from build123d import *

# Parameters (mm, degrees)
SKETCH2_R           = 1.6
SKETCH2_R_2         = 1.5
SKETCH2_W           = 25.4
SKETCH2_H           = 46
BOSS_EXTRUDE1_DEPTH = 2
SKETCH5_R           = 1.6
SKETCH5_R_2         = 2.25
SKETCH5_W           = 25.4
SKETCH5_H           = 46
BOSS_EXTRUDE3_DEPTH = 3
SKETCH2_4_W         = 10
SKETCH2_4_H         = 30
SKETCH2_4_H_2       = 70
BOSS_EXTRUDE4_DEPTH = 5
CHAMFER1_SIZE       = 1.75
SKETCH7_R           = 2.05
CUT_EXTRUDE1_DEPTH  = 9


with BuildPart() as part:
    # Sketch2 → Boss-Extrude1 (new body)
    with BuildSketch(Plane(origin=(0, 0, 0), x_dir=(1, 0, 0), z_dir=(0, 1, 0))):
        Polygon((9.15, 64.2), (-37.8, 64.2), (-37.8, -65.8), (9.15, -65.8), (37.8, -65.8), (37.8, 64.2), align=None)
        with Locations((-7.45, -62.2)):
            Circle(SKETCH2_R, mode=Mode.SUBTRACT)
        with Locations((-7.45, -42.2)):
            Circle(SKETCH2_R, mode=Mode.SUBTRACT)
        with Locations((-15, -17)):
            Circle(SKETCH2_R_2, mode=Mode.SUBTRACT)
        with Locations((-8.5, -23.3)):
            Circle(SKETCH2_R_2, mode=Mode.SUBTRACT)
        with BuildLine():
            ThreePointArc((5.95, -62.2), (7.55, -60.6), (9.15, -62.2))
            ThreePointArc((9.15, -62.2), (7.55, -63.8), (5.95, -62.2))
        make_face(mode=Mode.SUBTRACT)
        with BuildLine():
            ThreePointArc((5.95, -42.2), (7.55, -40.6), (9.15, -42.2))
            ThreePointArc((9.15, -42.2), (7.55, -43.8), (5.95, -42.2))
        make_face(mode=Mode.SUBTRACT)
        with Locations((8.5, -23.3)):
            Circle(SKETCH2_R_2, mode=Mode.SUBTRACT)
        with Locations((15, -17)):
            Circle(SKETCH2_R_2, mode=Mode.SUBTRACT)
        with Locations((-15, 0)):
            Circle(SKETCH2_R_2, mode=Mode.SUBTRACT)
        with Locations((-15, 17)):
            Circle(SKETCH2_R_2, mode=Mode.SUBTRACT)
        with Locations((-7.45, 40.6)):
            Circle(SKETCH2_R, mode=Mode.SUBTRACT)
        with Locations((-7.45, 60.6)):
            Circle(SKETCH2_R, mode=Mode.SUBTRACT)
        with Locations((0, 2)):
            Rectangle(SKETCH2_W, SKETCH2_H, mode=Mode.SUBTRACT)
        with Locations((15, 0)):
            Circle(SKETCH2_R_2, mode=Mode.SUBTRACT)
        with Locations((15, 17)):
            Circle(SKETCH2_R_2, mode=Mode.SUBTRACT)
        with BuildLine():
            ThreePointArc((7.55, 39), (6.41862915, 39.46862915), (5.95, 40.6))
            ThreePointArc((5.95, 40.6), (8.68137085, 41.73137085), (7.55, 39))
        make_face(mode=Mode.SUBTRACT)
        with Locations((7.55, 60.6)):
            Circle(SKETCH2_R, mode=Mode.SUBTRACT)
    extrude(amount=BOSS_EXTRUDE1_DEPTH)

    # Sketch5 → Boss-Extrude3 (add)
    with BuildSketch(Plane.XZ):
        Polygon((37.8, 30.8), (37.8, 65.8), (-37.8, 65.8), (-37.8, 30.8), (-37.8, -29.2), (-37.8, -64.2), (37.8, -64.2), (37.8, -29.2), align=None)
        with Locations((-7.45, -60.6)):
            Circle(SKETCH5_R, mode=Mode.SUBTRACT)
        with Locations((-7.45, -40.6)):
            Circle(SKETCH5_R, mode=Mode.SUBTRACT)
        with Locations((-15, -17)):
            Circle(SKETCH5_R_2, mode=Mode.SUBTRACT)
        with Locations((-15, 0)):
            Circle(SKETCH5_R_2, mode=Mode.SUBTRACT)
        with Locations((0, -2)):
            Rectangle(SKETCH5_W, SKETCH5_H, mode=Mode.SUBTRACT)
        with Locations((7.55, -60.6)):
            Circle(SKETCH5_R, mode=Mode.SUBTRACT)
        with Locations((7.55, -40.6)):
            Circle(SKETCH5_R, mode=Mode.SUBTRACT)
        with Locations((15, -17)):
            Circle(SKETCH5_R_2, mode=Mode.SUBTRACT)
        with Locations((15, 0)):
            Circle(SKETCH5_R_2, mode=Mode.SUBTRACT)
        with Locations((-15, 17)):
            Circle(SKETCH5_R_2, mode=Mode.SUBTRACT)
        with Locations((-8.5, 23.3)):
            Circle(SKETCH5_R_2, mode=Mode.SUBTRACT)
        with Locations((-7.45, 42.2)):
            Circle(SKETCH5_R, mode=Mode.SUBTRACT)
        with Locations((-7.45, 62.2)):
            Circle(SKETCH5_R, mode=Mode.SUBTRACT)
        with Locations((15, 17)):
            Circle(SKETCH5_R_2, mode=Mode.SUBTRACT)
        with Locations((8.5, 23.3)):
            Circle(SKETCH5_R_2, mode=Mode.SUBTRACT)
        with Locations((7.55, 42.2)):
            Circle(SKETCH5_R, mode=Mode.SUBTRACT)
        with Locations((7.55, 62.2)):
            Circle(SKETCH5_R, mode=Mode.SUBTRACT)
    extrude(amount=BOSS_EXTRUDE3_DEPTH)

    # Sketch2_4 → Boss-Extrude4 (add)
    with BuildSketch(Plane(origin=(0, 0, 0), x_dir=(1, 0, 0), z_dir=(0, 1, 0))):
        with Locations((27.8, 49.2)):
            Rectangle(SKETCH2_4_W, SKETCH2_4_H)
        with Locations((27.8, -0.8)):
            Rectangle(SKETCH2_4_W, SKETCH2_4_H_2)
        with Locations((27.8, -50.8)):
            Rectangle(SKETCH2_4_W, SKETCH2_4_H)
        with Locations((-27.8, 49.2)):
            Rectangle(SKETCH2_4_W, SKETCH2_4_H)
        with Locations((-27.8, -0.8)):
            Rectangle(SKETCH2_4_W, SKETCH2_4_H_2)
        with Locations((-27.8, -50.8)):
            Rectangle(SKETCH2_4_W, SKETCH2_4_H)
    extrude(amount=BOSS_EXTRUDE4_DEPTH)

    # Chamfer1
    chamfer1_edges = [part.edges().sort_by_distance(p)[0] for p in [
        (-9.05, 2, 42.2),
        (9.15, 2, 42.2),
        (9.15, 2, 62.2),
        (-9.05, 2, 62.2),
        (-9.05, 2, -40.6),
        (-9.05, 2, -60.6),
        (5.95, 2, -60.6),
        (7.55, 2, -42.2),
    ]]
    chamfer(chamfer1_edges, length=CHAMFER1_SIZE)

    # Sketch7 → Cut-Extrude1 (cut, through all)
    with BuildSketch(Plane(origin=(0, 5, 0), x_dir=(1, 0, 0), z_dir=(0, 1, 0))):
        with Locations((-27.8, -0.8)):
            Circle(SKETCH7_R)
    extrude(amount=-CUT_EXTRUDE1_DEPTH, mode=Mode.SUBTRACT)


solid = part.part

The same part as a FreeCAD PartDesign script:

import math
import FreeCAD as App
import Part
import Sketcher
Q = App.Units.Quantity


def edges_at(feature, points):
    """Names of the edges that pass closest to the given points."""
    edges = feature.Shape.Edges
    near = lambda p: min(range(len(edges)), key=lambda i: edges[i].distToShape(Part.Vertex(*p))[0])
    return sorted({f"Edge{near(p) + 1}" for p in points})


def add_polygon(sketch, points):
    """Adds a closed chain of lines whose ends are joined by coincident constraints."""
    first, n = sketch.GeometryCount, len(points)
    for a, b in zip(points, points[1:] + points[:1]):
        sketch.addGeometry(Part.LineSegment(App.Vector(*a, 0), App.Vector(*b, 0)), False)
    for i in range(n):
        sketch.addConstraint(Sketcher.Constraint("Coincident", first + i, 2, first + (i + 1) % n, 1))

doc = App.newDocument("Part")
body = doc.addObject("PartDesign::Body", "Body")

# Sketch on XZ plane
sketch1 = body.newObject("Sketcher::SketchObject", "Sketch")
sketch1.AttachmentSupport = (doc.getObject("XZ_Plane"), [""])
sketch1.MapMode = "FlatFace"
add_polygon(sketch1, [(-37.8, -64.2), (-37.8, 65.8), (37.8, 65.8), (37.8, -64.2)])  # lines 0-3
sketch1.addGeometry(Part.Circle(App.Vector(-7.5, 62.2, 0), App.Vector(0, 0, 1), 1.6), False)  # 4
sketch1.addGeometry(Part.Circle(App.Vector(-7.5, 42.2, 0), App.Vector(0, 0, 1), 1.6), False)  # 5
sketch1.addGeometry(Part.Circle(App.Vector(-15, 17, 0), App.Vector(0, 0, 1), 1.5), False)  # 6
sketch1.addGeometry(Part.Circle(App.Vector(-8.5, 23.3, 0), App.Vector(0, 0, 1), 1.5), False)  # 7
sketch1.addGeometry(Part.Circle(App.Vector(7.5, 62.2, 0), App.Vector(0, 0, 1), 1.6), False)  # 8
sketch1.addGeometry(Part.Circle(App.Vector(7.5, 42.2, 0), App.Vector(0, 0, 1), 1.6), False)  # 9
sketch1.addGeometry(Part.Circle(App.Vector(8.5, 23.3, 0), App.Vector(0, 0, 1), 1.5), False)  # 10
sketch1.addGeometry(Part.Circle(App.Vector(15, 17, 0), App.Vector(0, 0, 1), 1.5), False)  # 11
sketch1.addGeometry(Part.Circle(App.Vector(-15, 0, 0), App.Vector(0, 0, 1), 1.5), False)  # 12
sketch1.addGeometry(Part.Circle(App.Vector(-15, -17, 0), App.Vector(0, 0, 1), 1.5), False)  # 13
sketch1.addGeometry(Part.Circle(App.Vector(-7.5, -40.6, 0), App.Vector(0, 0, 1), 1.6), False)  # 14
sketch1.addGeometry(Part.Circle(App.Vector(-7.5, -60.6, 0), App.Vector(0, 0, 1), 1.6), False)  # 15
add_polygon(sketch1, [(12.7, 21), (-12.7, 21), (-12.7, -25), (12.7, -25)])  # lines 16-19
sketch1.addGeometry(Part.Circle(App.Vector(15, 0, 0), App.Vector(0, 0, 1), 1.5), False)  # 20
sketch1.addGeometry(Part.Circle(App.Vector(15, -17, 0), App.Vector(0, 0, 1), 1.5), False)  # 21
sketch1.addGeometry(Part.ArcOfCircle(Part.Circle(App.Vector(7.5, -40.6, 0), App.Vector(0, 0, 1), 1.6), math.radians(180), math.radians(450)), False)  # 22
sketch1.addGeometry(Part.ArcOfCircle(Part.Circle(App.Vector(7.5, -40.6, 0), App.Vector(0, 0, 1), 1.6), math.radians(90), math.radians(180)), False)  # 23
sketch1.addGeometry(Part.Circle(App.Vector(7.5, -60.6, 0), App.Vector(0, 0, 1), 1.6), False)  # 24
sketch1.addConstraint([
    Sketcher.Constraint("Tangent", 22, 1, 23, 2),
    Sketcher.Constraint("Coincident", 23, 1, 22, 2),
    Sketcher.Constraint("Vertical", 0),
    Sketcher.Constraint("Horizontal", 1),
    Sketcher.Constraint("Vertical", 2),
    Sketcher.Constraint("Horizontal", 3),
    Sketcher.Constraint("Horizontal", 16),
    Sketcher.Constraint("Vertical", 17),
    Sketcher.Constraint("Horizontal", 18),
    Sketcher.Constraint("Vertical", 19),
    Sketcher.Constraint("Equal", 4, 5),
    Sketcher.Constraint("Equal", 6, 7),
    Sketcher.Constraint("Equal", 5, 8),
    Sketcher.Constraint("Equal", 8, 9),
    Sketcher.Constraint("Equal", 7, 10),
    Sketcher.Constraint("Equal", 10, 11),
    Sketcher.Constraint("Equal", 11, 12),
    Sketcher.Constraint("Equal", 12, 13),
    Sketcher.Constraint("Equal", 9, 14),
    Sketcher.Constraint("Equal", 14, 15),
    Sketcher.Constraint("Equal", 13, 20),
    Sketcher.Constraint("Equal", 20, 21),
    Sketcher.Constraint("Equal", 15, 22),
    Sketcher.Constraint("Equal", 23, 24),
    Sketcher.Constraint("Symmetric", 11, 3, 13, 3, -1, 1),
    Sketcher.Constraint("Symmetric", 12, 3, 20, 3, -1, 1),
    Sketcher.Constraint("Symmetric", 6, 3, 21, 3, -1, 1),
    Sketcher.Constraint("Symmetric", 7, 3, 10, 3, -2),
    Sketcher.Constraint("Symmetric", 6, 3, 11, 3, -2),
    Sketcher.Constraint("PointOnObject", 12, 3, -1),
    Sketcher.Constraint("Horizontal", 4, 3, 8, 3),
    Sketcher.Constraint("Horizontal", 5, 3, 9, 3),
    Sketcher.Constraint("Horizontal", 14, 3, 22, 3),
    Sketcher.Constraint("Horizontal", 15, 3, 24, 3),
    Sketcher.Constraint("Horizontal", 23, 3, 22, 1),
    Sketcher.Constraint("Vertical", 4, 3, 5, 3),
    Sketcher.Constraint("Vertical", 8, 3, 9, 3),
    Sketcher.Constraint("Vertical", 6, 3, 12, 3),
    Sketcher.Constraint("Vertical", 5, 3, 14, 3),
    Sketcher.Constraint("Vertical", 14, 3, 15, 3),
    Sketcher.Constraint("Vertical", 9, 3, 22, 3),
    Sketcher.Constraint("Vertical", 23, 3, 24, 3),
    Sketcher.Constraint("Vertical", 24, 3, 23, 1),
    Sketcher.Constraint("Diameter", 6, Q("3 mm")),
    Sketcher.Constraint("Diameter", 4, Q("3.2 mm")),
    Sketcher.Constraint("DistanceY", 0, 1, 0, 2, Q("130 mm")),
    Sketcher.Constraint("DistanceY", 17, 2, 17, 1, Q("46 mm")),
    Sketcher.Constraint("DistanceX", 1, 1, 1, 2, Q("75.6 mm")),
    Sketcher.Constraint("DistanceX", 16, 2, 16, 1, Q("25.4 mm")),
    Sketcher.Constraint("DistanceX", 6, 3, -1, 1, Q("15 mm")),
    Sketcher.Constraint("DistanceY", -1, 1, 6, 3, Q("17 mm")),
    Sketcher.Constraint("DistanceY", -1, 1, 16, 2, Q("21 mm")),
    Sketcher.Constraint("DistanceY", 23, 1, -1, 1, Q("39 mm")),
    Sketcher.Constraint("DistanceY", 5, 3, 4, 3, Q("20 mm")),
    Sketcher.Constraint("DistanceX", 4, 3, 8, 3, Q("15 mm")),
    Sketcher.Constraint("DistanceX", 7, 3, 10, 3, Q("17 mm")),
    Sketcher.Constraint("DistanceY", 15, 3, 14, 3, Q("20 mm")),
    Sketcher.Constraint("DistanceY", -1, 1, 4, 3, Q("62.2 mm")),
    Sketcher.Constraint("DistanceY", -1, 1, 7, 3, Q("23.3 mm")),
    Sketcher.Constraint("DistanceX", 0, 2, -1, 1, Q("37.8 mm")),
    Sketcher.Constraint("DistanceY", -1, 1, 0, 2, Q("65.8 mm")),
    Sketcher.Constraint("DistanceX", 16, 2, -1, 1, Q("12.7 mm")),
    Sketcher.Constraint("DistanceX", 4, 3, -1, 1, Q("7.45 mm")),
])
pad1 = body.newObject("PartDesign::Pad", "Pad")
pad1.Profile = sketch1
pad1.Length = 2
pad1.Reversed = True

# Sketch on XZ plane
sketch2 = body.newObject("Sketcher::SketchObject", "Sketch001")
sketch2.AttachmentSupport = (doc.getObject("XZ_Plane"), [""])
sketch2.MapMode = "FlatFace"
add_polygon(sketch2, [(37.8, 65.8), (-37.8, 65.8), (-37.8, -64.2), (37.8, -64.2)])  # lines 0-3
sketch2.addGeometry(Part.Circle(App.Vector(-7.5, -60.6, 0), App.Vector(0, 0, 1), 1.6), False)  # 4
sketch2.addGeometry(Part.Circle(App.Vector(-7.5, -40.6, 0), App.Vector(0, 0, 1), 1.6), False)  # 5
sketch2.addGeometry(Part.Circle(App.Vector(-15, -17, 0), App.Vector(0, 0, 1), 2.2), False)  # 6
sketch2.addGeometry(Part.Circle(App.Vector(-15, 0, 0), App.Vector(0, 0, 1), 2.2), False)  # 7
sketch2.addGeometry(Part.Circle(App.Vector(7.5, -60.6, 0), App.Vector(0, 0, 1), 1.6), False)  # 8
sketch2.addGeometry(Part.Circle(App.Vector(7.5, -40.6, 0), App.Vector(0, 0, 1), 1.6), False)  # 9
add_polygon(sketch2, [(12.7, -25), (-12.7, -25), (-12.7, 21), (12.7, 21)])  # lines 10-13
sketch2.addGeometry(Part.Circle(App.Vector(15, -17, 0), App.Vector(0, 0, 1), 2.2), False)  # 14
sketch2.addGeometry(Part.Circle(App.Vector(15, 0, 0), App.Vector(0, 0, 1), 2.2), False)  # 15
sketch2.addGeometry(Part.Circle(App.Vector(-15, 17, 0), App.Vector(0, 0, 1), 2.2), False)  # 16
sketch2.addGeometry(Part.Circle(App.Vector(-8.5, 23.3, 0), App.Vector(0, 0, 1), 2.2), False)  # 17
sketch2.addGeometry(Part.Circle(App.Vector(-7.5, 42.2, 0), App.Vector(0, 0, 1), 1.6), False)  # 18
sketch2.addGeometry(Part.Circle(App.Vector(-7.5, 62.2, 0), App.Vector(0, 0, 1), 1.6), False)  # 19
sketch2.addGeometry(Part.Circle(App.Vector(8.5, 23.3, 0), App.Vector(0, 0, 1), 2.2), False)  # 20
sketch2.addGeometry(Part.Circle(App.Vector(15, 17, 0), App.Vector(0, 0, 1), 2.2), False)  # 21
sketch2.addGeometry(Part.Circle(App.Vector(7.5, 42.2, 0), App.Vector(0, 0, 1), 1.6), False)  # 22
sketch2.addGeometry(Part.Circle(App.Vector(7.5, 62.2, 0), App.Vector(0, 0, 1), 1.6), False)  # 23
sketch2.addConstraint([
    Sketcher.Constraint("Horizontal", 0),
    Sketcher.Constraint("Vertical", 1),
    Sketcher.Constraint("Horizontal", 2),
    Sketcher.Constraint("Vertical", 3),
    Sketcher.Constraint("Horizontal", 10),
    Sketcher.Constraint("Vertical", 11),
    Sketcher.Constraint("Horizontal", 12),
    Sketcher.Constraint("Vertical", 13),
    Sketcher.Constraint("Equal", 4, 5),
    Sketcher.Constraint("Equal", 6, 7),
    Sketcher.Constraint("Equal", 5, 8),
    Sketcher.Constraint("Equal", 8, 9),
    Sketcher.Constraint("Equal", 7, 14),
    Sketcher.Constraint("Equal", 14, 15),
    Sketcher.Constraint("Equal", 15, 16),
    Sketcher.Constraint("Equal", 16, 17),
    Sketcher.Constraint("Equal", 9, 18),
    Sketcher.Constraint("Equal", 18, 19),
    Sketcher.Constraint("Equal", 17, 20),
    Sketcher.Constraint("Equal", 20, 21),
    Sketcher.Constraint("Equal", 19, 22),
    Sketcher.Constraint("Equal", 22, 23),
    Sketcher.Constraint("Symmetric", 7, 3, 15, 3, -1, 1),
    Sketcher.Constraint("Symmetric", 14, 3, 16, 3, -1, 1),
    Sketcher.Constraint("Symmetric", 6, 3, 21, 3, -1, 1),
    Sketcher.Constraint("Symmetric", 6, 3, 14, 3, -2),
    Sketcher.Constraint("Symmetric", 17, 3, 20, 3, -2),
    Sketcher.Constraint("PointOnObject", 7, 3, -1),
    Sketcher.Constraint("Horizontal", 4, 3, 8, 3),
    Sketcher.Constraint("Horizontal", 5, 3, 9, 3),
    Sketcher.Constraint("Horizontal", 18, 3, 22, 3),
    Sketcher.Constraint("Horizontal", 19, 3, 23, 3),
    Sketcher.Constraint("Vertical", 4, 3, 5, 3),
    Sketcher.Constraint("Vertical", 6, 3, 7, 3),
    Sketcher.Constraint("Vertical", 8, 3, 9, 3),
    Sketcher.Constraint("Vertical", 5, 3, 18, 3),
    Sketcher.Constraint("Vertical", 18, 3, 19, 3),
    Sketcher.Constraint("Vertical", 9, 3, 22, 3),
    Sketcher.Constraint("Vertical", 22, 3, 23, 3),
    Sketcher.Constraint("Diameter", 4, Q("3.2 mm")),
    Sketcher.Constraint("Diameter", 6, Q("4.5 mm")),
    Sketcher.Constraint("DistanceY", 1, 2, 1, 1, Q("130 mm")),
    Sketcher.Constraint("DistanceY", 11, 1, 11, 2, Q("46 mm")),
    Sketcher.Constraint("DistanceX", 0, 2, 0, 1, Q("75.6 mm")),
    Sketcher.Constraint("DistanceX", 10, 2, 10, 1, Q("25.4 mm")),
    Sketcher.Constraint("DistanceX", 6, 3, -1, 1, Q("15 mm")),
    Sketcher.Constraint("DistanceY", 6, 3, -1, 1, Q("17 mm")),
    Sketcher.Constraint("DistanceY", 10, 2, -1, 1, Q("25 mm")),
    Sketcher.Constraint("DistanceY", 4, 3, 5, 3, Q("20 mm")),
    Sketcher.Constraint("DistanceX", 4, 3, 8, 3, Q("15 mm")),
    Sketcher.Constraint("DistanceY", 18, 3, 19, 3, Q("20 mm")),
    Sketcher.Constraint("DistanceX", 17, 3, 20, 3, Q("17 mm")),
    Sketcher.Constraint("DistanceY", 4, 3, -1, 1, Q("60.6 mm")),
    Sketcher.Constraint("DistanceY", -1, 1, 17, 3, Q("23.3 mm")),
    Sketcher.Constraint("DistanceY", -1, 1, 18, 3, Q("42.2 mm")),
    Sketcher.Constraint("DistanceX", 0, 2, -1, 1, Q("37.8 mm")),
    Sketcher.Constraint("DistanceY", -1, 1, 0, 2, Q("65.8 mm")),
    Sketcher.Constraint("DistanceX", 10, 2, -1, 1, Q("12.7 mm")),
    Sketcher.Constraint("DistanceX", 4, 3, -1, 1, Q("7.45 mm")),
])
pad2 = body.newObject("PartDesign::Pad", "Pad001")
pad2.Profile = sketch2
pad2.Length = 3

# Sketch on XZ plane
sketch3 = body.newObject("Sketcher::SketchObject", "Sketch002")
sketch3.AttachmentSupport = (doc.getObject("XZ_Plane"), [""])
sketch3.MapMode = "FlatFace"
add_polygon(sketch3, [(23, -64), (23, 66), (33, 66), (33, -64)])  # lines 0-3
add_polygon(sketch3, [(-33, -64), (-33, 66), (-23, 66), (-23, -64)])  # lines 4-7
sketch3.addConstraint([
    Sketcher.Constraint("Vertical", 0),
    Sketcher.Constraint("Horizontal", 1),
    Sketcher.Constraint("Vertical", 2),
    Sketcher.Constraint("Horizontal", 3),
    Sketcher.Constraint("Vertical", 4),
    Sketcher.Constraint("Horizontal", 5),
    Sketcher.Constraint("Vertical", 6),
    Sketcher.Constraint("Horizontal", 7),
    Sketcher.Constraint("Symmetric", 1, 2, 4, 2, -2),
    Sketcher.Constraint("Symmetric", 3, 2, 6, 2, -2),
    Sketcher.Constraint("DistanceX", 1, 1, 1, 2, Q("10 mm")),
    Sketcher.Constraint("DistanceY", 0, 1, 0, 2, Q("130 mm")),
    Sketcher.Constraint("DistanceX", -1, 1, 0, 2, Q("22.8 mm")),
    Sketcher.Constraint("DistanceY", -1, 1, 0, 2, Q("65.8 mm")),
])
pad3 = body.newObject("PartDesign::Pad", "Pad002")
pad3.Profile = sketch3
pad3.Length = 5
pad3.Reversed = True
doc.recompute()

chamfer = body.newObject("PartDesign::Chamfer", "Chamfer")
chamfer.Base = (pad3, edges_at(pad3, [
    (-9.05, 2, 42.2),
    (5.95, 2, 42.2),
    (5.95, 2, 62.2),
    (-9.05, 2, 62.2),
    (-9.05, 2, -40.6),
    (-9.05, 2, -60.6),
    (5.95, 2, -60.6),
    (8.681, 2, -41.731),
]))
chamfer.Size = 1.75

# Sketch on XZ plane
sketch4 = body.newObject("Sketcher::SketchObject", "Sketch003")
sketch4.AttachmentSupport = (doc.getObject("XZ_Plane"), [""])
sketch4.MapMode = "FlatFace"
sketch4.AttachmentOffset = App.Placement(App.Vector(0, 0, -5), App.Rotation())
sketch4.addGeometry(Part.Circle(App.Vector(-27.8, 0.8, 0), App.Vector(0, 0, 1), 2), False)
sketch4.addConstraint([
    Sketcher.Constraint("Diameter", 0, Q("4.1 mm")),
    Sketcher.Constraint("DistanceX", 0, 3, -1, 1, Q("27.8 mm")),
    Sketcher.Constraint("DistanceY", -1, 1, 0, 3, Q("0.8 mm")),
])
pocket1 = body.newObject("PartDesign::Pocket", "Pocket")
pocket1.Profile = sketch4
pocket1.Type = "ThroughAll"
pocket1.Reversed = True

doc.recompute()
